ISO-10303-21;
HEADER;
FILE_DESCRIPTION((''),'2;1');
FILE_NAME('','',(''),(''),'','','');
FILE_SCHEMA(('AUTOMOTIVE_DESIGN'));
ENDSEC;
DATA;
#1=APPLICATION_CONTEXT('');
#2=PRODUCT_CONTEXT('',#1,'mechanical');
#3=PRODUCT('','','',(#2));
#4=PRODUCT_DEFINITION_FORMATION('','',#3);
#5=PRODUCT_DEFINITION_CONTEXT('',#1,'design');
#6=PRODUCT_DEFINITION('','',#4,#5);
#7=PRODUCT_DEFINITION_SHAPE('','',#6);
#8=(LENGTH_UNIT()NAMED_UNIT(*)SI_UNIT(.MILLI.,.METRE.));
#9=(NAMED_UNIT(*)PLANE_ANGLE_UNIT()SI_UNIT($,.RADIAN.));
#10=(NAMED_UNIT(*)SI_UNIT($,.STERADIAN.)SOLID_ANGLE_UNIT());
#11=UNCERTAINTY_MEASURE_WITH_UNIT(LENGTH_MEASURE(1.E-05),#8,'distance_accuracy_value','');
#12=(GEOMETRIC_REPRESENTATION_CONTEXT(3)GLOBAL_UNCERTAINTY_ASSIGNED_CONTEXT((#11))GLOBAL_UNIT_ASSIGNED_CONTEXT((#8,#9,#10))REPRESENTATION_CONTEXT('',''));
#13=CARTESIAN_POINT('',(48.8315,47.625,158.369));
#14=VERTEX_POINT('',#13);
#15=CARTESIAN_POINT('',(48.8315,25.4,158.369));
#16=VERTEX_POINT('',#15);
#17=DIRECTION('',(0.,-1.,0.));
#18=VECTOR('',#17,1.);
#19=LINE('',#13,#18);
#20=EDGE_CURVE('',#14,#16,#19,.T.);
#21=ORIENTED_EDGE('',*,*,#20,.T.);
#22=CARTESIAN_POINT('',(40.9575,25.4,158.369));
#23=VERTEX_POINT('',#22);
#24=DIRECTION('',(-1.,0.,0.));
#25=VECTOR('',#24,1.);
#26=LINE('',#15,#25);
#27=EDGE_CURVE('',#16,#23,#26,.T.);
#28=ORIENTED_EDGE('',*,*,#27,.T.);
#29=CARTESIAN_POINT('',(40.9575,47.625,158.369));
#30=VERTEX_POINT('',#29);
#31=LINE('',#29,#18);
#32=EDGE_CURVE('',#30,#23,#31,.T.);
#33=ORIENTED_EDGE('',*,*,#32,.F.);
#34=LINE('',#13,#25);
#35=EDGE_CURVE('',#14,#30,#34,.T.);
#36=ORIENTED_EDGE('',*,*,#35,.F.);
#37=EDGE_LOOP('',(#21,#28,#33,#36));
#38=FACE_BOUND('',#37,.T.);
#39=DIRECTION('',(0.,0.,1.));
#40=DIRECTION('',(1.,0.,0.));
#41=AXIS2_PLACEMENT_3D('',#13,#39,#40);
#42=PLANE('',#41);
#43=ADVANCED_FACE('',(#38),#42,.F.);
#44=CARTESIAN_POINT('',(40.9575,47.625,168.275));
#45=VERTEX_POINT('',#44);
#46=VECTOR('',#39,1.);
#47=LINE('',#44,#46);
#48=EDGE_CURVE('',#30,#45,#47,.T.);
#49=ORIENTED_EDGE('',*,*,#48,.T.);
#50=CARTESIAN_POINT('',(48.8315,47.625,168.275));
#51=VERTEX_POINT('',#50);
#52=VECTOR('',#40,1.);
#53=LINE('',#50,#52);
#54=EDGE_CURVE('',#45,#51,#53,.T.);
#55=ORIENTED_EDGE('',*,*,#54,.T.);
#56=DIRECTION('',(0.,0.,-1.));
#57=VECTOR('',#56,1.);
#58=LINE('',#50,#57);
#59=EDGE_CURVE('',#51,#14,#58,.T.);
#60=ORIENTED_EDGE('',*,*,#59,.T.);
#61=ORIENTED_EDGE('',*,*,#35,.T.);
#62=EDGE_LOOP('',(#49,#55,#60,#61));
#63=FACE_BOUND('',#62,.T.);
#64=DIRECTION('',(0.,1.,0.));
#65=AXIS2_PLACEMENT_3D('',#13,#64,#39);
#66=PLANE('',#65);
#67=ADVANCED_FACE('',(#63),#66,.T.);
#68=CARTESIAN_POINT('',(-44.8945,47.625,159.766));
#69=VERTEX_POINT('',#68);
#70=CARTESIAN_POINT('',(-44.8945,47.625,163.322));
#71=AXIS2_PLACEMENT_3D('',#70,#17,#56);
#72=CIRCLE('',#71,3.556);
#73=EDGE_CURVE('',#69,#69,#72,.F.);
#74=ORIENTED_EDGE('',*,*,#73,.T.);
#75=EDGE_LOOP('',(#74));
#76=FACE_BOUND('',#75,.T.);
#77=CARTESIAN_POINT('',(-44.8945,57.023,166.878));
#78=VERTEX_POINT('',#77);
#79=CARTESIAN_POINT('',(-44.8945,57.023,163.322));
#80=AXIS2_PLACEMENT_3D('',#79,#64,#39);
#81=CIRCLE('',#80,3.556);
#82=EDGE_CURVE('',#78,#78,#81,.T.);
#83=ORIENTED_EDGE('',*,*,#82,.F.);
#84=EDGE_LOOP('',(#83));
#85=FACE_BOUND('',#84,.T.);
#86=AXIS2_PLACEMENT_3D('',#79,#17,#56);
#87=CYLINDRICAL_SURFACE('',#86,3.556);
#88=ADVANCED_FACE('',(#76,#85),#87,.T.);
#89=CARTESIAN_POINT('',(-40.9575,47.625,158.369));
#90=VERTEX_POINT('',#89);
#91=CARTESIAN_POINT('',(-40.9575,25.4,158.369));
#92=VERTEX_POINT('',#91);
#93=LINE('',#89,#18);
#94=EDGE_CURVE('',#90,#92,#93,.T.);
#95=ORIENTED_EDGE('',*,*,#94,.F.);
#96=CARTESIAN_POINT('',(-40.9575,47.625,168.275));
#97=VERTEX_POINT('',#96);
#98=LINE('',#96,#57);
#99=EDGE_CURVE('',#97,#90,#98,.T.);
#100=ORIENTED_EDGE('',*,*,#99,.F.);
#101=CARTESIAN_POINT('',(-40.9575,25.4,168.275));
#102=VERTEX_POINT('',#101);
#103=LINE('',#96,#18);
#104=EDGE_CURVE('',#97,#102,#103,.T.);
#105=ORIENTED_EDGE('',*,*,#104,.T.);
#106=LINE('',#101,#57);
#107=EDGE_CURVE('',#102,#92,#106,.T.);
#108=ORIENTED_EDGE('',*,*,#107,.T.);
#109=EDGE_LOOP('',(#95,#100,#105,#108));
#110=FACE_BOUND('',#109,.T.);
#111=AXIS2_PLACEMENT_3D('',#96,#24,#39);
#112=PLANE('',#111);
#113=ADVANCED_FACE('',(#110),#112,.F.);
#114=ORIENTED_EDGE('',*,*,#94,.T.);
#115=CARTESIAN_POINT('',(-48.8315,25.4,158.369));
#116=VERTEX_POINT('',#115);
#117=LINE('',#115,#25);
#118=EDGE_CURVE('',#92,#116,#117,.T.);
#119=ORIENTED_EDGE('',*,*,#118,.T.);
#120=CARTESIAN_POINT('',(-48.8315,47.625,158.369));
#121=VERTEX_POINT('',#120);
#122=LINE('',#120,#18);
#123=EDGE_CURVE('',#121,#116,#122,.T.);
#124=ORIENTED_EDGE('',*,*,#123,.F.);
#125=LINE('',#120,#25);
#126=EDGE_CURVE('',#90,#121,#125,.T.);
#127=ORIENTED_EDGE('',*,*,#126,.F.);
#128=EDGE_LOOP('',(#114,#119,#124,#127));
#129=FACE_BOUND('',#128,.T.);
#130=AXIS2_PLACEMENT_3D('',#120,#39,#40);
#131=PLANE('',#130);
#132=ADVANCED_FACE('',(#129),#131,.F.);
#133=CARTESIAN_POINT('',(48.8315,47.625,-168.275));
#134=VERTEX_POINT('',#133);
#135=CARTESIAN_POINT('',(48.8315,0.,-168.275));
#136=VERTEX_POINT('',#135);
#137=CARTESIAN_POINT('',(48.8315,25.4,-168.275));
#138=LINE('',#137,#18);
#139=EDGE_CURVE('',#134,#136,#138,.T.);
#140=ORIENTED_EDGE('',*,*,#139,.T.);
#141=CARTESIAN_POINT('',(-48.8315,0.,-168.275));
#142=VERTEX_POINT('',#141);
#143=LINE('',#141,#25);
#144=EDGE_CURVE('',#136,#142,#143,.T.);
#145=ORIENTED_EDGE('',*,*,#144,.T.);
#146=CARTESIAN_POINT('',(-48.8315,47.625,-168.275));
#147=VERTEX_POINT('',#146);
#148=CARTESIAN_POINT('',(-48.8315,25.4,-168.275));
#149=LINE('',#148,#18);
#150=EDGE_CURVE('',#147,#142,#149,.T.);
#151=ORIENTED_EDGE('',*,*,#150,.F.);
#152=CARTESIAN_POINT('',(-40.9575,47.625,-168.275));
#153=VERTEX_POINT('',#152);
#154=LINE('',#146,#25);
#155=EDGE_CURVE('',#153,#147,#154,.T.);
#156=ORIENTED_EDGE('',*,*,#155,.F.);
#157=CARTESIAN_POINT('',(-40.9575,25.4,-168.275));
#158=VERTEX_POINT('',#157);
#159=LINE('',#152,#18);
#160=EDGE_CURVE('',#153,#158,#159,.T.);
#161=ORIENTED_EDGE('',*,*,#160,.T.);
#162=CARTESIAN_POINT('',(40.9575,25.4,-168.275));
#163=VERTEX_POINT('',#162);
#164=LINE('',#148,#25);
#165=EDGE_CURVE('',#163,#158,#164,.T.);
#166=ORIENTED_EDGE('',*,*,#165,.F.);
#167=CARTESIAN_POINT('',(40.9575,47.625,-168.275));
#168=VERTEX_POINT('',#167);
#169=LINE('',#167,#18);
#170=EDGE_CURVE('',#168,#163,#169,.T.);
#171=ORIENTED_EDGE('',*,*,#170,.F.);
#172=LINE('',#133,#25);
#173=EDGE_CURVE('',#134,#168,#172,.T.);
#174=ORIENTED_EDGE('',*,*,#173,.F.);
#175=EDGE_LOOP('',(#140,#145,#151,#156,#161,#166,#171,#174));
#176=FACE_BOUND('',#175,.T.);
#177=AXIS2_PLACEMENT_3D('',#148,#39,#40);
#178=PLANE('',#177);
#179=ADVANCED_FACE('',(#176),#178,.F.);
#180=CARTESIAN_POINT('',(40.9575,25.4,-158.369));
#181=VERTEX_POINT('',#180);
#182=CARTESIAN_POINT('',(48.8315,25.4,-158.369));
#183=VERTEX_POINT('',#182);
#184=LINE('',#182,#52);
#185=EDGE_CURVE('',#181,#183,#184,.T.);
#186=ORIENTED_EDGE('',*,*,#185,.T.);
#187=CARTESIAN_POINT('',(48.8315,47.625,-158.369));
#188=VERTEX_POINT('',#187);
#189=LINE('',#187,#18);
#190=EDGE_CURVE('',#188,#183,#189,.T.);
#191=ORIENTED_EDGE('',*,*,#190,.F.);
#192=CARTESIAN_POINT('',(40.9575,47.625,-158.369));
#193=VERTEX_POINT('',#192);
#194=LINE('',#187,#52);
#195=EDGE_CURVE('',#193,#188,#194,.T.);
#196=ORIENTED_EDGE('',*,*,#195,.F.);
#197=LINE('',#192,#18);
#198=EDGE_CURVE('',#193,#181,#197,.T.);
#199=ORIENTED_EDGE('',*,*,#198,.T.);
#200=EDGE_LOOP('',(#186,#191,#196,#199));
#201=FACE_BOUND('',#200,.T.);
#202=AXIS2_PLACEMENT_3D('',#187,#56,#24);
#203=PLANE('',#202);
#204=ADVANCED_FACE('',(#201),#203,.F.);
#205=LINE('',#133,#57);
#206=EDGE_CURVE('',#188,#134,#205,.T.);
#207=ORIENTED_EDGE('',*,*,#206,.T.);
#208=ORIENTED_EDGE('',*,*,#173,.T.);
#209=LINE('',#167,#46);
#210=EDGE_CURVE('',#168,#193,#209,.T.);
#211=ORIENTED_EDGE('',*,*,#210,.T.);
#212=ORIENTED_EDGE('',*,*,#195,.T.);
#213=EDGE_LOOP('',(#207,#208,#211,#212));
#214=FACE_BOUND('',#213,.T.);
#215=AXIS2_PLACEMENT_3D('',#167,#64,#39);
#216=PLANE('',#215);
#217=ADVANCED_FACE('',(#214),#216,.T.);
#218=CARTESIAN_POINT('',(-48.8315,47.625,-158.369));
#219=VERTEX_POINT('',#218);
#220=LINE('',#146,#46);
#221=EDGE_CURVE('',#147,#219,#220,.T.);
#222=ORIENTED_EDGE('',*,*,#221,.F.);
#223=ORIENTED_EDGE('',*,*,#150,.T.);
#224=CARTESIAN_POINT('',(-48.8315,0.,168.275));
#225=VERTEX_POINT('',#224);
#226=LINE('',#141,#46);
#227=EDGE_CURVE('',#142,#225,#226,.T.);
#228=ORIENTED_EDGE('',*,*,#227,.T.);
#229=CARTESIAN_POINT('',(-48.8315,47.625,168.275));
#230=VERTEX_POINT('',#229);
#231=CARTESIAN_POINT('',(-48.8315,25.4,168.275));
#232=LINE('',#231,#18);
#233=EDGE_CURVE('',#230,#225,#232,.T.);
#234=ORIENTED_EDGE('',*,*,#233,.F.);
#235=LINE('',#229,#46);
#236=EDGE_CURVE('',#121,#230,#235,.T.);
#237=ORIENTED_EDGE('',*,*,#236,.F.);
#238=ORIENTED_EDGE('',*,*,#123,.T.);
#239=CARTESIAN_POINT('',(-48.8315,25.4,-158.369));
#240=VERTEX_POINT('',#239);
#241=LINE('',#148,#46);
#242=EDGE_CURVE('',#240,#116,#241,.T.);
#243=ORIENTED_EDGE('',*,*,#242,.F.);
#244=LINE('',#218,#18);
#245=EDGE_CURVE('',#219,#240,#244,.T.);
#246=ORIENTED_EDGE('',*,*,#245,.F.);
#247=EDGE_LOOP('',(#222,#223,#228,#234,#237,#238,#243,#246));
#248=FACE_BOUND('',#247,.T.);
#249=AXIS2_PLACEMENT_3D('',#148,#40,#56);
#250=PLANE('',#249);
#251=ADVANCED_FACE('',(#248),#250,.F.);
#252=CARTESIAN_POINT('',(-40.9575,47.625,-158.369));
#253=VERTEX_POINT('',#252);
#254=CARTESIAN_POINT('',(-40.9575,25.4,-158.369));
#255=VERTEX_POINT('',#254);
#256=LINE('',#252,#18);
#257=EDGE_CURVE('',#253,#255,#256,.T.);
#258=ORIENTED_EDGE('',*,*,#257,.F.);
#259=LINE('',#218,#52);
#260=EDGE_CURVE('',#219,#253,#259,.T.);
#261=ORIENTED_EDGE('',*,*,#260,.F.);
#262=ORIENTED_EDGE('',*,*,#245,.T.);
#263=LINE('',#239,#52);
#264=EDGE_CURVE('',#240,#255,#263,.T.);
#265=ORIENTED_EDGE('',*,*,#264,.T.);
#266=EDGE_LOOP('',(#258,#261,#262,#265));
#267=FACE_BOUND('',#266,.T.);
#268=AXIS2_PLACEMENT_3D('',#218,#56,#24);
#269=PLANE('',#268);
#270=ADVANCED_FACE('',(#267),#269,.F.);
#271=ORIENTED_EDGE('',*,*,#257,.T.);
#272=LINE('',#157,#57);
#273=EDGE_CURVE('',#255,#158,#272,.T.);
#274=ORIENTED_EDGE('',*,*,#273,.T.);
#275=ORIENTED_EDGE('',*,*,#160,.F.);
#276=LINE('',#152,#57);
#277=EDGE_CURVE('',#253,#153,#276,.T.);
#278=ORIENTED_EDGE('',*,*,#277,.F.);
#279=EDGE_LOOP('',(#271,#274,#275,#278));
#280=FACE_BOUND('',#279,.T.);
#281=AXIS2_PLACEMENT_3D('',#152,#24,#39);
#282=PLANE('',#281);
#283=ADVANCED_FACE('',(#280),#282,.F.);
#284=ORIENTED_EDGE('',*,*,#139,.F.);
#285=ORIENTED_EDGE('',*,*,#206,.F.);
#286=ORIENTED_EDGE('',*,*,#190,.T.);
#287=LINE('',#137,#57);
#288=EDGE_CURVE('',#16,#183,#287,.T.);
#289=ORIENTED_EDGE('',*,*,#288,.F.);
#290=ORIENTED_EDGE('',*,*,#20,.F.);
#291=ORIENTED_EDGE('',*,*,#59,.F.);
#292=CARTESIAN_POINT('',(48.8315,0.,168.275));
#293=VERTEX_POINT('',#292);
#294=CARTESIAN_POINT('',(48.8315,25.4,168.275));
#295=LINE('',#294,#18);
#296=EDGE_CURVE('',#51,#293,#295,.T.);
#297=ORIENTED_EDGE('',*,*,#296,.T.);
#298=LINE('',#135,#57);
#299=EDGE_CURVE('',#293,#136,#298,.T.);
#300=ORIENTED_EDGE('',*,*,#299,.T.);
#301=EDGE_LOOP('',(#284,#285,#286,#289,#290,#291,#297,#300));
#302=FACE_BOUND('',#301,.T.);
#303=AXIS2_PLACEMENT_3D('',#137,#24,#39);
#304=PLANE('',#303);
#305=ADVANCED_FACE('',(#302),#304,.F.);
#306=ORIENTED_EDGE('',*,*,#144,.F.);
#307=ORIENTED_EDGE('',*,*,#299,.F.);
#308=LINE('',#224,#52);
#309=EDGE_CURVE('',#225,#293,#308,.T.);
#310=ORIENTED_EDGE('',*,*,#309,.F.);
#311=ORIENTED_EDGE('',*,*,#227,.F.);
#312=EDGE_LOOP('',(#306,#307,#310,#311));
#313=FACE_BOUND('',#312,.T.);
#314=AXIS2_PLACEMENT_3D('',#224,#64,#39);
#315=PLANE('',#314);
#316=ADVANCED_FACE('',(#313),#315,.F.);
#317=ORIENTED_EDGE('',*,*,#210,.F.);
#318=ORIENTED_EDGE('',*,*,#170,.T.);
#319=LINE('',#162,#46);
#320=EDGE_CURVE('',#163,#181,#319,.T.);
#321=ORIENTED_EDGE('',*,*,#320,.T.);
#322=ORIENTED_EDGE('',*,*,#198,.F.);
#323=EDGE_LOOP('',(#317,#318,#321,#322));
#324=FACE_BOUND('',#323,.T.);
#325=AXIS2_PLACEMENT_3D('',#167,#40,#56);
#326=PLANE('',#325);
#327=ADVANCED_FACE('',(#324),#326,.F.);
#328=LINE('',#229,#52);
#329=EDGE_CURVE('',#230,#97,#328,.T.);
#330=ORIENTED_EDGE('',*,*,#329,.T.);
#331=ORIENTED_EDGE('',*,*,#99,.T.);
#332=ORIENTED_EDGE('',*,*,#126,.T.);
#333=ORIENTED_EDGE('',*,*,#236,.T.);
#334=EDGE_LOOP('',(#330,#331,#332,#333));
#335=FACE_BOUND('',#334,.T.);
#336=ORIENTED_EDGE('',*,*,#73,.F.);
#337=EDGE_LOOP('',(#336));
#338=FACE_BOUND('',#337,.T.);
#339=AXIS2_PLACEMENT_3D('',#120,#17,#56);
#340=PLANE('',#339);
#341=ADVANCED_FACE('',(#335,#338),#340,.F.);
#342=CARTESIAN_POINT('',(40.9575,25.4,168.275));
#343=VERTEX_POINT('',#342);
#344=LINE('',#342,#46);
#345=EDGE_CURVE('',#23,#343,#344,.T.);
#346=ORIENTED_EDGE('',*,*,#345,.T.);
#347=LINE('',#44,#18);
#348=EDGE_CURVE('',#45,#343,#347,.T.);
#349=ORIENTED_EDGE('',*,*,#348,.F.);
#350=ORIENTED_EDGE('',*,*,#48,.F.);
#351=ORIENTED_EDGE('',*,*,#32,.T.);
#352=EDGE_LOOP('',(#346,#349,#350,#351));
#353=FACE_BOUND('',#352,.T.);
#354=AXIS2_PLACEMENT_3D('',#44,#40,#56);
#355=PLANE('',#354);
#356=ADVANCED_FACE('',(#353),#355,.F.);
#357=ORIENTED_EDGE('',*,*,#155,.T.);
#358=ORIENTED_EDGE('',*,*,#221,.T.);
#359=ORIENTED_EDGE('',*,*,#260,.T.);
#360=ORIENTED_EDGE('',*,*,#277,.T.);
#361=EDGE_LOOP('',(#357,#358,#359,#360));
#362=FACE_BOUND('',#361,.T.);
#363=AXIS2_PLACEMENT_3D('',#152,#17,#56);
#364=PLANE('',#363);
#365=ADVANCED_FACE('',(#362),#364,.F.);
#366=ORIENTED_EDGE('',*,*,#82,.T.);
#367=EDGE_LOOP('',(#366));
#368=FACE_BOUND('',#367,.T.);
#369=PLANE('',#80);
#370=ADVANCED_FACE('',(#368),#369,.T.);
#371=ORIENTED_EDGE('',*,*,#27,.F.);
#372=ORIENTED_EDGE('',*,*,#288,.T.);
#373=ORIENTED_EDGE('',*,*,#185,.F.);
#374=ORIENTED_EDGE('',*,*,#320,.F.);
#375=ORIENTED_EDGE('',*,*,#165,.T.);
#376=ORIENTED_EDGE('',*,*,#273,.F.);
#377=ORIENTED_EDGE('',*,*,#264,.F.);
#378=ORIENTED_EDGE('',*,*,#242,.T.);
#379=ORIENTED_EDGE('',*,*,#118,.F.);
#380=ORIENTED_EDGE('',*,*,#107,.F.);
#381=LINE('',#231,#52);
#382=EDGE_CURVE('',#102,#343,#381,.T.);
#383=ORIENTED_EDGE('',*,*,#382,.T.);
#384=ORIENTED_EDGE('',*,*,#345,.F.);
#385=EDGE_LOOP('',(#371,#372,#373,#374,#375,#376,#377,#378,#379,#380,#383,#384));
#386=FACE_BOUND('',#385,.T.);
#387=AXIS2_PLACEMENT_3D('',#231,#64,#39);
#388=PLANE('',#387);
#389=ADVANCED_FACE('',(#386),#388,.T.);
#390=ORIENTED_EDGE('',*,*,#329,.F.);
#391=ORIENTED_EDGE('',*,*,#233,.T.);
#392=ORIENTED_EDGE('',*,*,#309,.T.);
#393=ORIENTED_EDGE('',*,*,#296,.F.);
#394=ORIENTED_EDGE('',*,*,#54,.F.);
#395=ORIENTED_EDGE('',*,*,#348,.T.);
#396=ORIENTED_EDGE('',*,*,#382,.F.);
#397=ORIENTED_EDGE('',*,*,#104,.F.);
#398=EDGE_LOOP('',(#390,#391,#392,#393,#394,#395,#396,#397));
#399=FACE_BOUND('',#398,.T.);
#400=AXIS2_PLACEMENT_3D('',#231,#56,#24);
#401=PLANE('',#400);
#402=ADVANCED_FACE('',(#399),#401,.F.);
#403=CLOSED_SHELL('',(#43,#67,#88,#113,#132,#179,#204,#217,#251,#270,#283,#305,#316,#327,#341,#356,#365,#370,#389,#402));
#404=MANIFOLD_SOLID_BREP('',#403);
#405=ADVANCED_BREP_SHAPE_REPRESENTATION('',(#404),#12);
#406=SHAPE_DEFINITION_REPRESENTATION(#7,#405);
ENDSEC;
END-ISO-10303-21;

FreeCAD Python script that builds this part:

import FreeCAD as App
import Part
import Sketcher
Q = App.Units.Quantity


def add_polygon(sketch, points):
    """Adds a closed chain of lines whose ends are joined by coincident constraints."""
    first, n = sketch.GeometryCount, len(points)
    for a, b in zip(points, points[1:] + points[:1]):
        sketch.addGeometry(Part.LineSegment(App.Vector(*a, 0), App.Vector(*b, 0)), False)
    for i in range(n):
        sketch.addConstraint(Sketcher.Constraint("Coincident", first + i, 2, first + (i + 1) % n, 1))

doc = App.newDocument("Part")
body = doc.addObject("PartDesign::Body", "Body")

# Sketch on XZ plane
sketch1 = doc.addObject("Sketcher::SketchObject", "Sketch")
body.addObject(sketch1)
sketch1.AttachmentSupport = (doc.XZ_Plane, [""])
sketch1.MapMode = "FlatFace"
add_polygon(sketch1, [(-49, -168), (-49, 168), (49, 168), (49, -168)])  # lines 0-3
sketch1.addConstraint([
    Sketcher.Constraint("Vertical", 0),
    Sketcher.Constraint("Horizontal", 1),
    Sketcher.Constraint("Vertical", 2),
    Sketcher.Constraint("Horizontal", 3),
    Sketcher.Constraint("Symmetric", 0, 2, 2, 2, -1, 1),
    Sketcher.Constraint("DistanceY", 0, 1, 0, 2, Q("13.25 in")),
    Sketcher.Constraint("DistanceX", 1, 1, 1, 2, Q("3.845 in")),
])
pad1 = doc.addObject("PartDesign::Pad", "Pad")
body.addObject(pad1)
pad1.Profile = sketch1
pad1.Length = Q("1 in")
pad1.Reversed = True

# Sketch on XZ plane
sketch2 = doc.addObject("Sketcher::SketchObject", "Sketch001")
body.addObject(sketch2)
sketch2.AttachmentSupport = (doc.XZ_Plane, [""])
sketch2.MapMode = "FlatFace"
sketch2.AttachmentOffset = App.Placement(App.Vector(0, 0, -1 * 25.4), App.Rotation())
add_polygon(sketch2, [(-49, 158), (-49, 168), (-41, 168), (-41, 158)])  # lines 0-3
add_polygon(sketch2, [(41, 158), (41, 168), (49, 168), (49, 158)])  # lines 4-7
add_polygon(sketch2, [(41, -168), (41, -158), (49, -158), (49, -168)])  # lines 8-11
add_polygon(sketch2, [(-49, -168), (-49, -158), (-41, -158), (-41, -168)])  # lines 12-15
sketch2.addConstraint([
    Sketcher.Constraint("Vertical", 0),
    Sketcher.Constraint("Horizontal", 1),
    Sketcher.Constraint("Vertical", 2),
    Sketcher.Constraint("Horizontal", 3),
    Sketcher.Constraint("Vertical", 4),
    Sketcher.Constraint("Horizontal", 5),
    Sketcher.Constraint("Vertical", 6),
    Sketcher.Constraint("Horizontal", 7),
    Sketcher.Constraint("Vertical", 8),
    Sketcher.Constraint("Horizontal", 9),
    Sketcher.Constraint("Vertical", 10),
    Sketcher.Constraint("Horizontal", 11),
    Sketcher.Constraint("Vertical", 12),
    Sketcher.Constraint("Horizontal", 13),
    Sketcher.Constraint("Vertical", 14),
    Sketcher.Constraint("Horizontal", 15),
    Sketcher.Constraint("Symmetric", 2, 2, 8, 2, -1, 1),
    Sketcher.Constraint("Symmetric", 0, 2, 10, 2, -1, 1),
    Sketcher.Constraint("Symmetric", 6, 2, 12, 2, -1, 1),
    Sketcher.Constraint("Symmetric", 4, 2, 14, 2, -1, 1),
    Sketcher.Constraint("Symmetric", 1, 2, 4, 2, -2),
    Sketcher.Constraint("Symmetric", 3, 2, 6, 2, -2),
    Sketcher.Constraint("DistanceX", 1, 1, 1, 2, Q("0.31 in")),
    Sketcher.Constraint("DistanceY", 0, 1, 0, 2, Q("0.39 in")),
    Sketcher.Constraint("DistanceY", 8, 2, 7, 2, Q("12.47 in")),
    Sketcher.Constraint("DistanceX", 1, 2, 4, 2, Q("3.225 in")),
])
pad2 = doc.addObject("PartDesign::Pad", "Pad001")
body.addObject(pad2)
pad2.Profile = sketch2
pad2.Length = Q("0.875 in")
pad2.Reversed = True

# Sketch on XZ plane
sketch3 = doc.addObject("Sketcher::SketchObject", "Sketch002")
body.addObject(sketch3)
sketch3.AttachmentSupport = (doc.XZ_Plane, [""])
sketch3.MapMode = "FlatFace"
sketch3.AttachmentOffset = App.Placement(App.Vector(0, 0, -1.875 * 25.4), App.Rotation())
sketch3.addGeometry(Part.Circle(App.Vector(-44.9, 163.3, 0), App.Vector(0, 0, 1), 3.6), False)
sketch3.addConstraint([
    Sketcher.Constraint("Diameter", 0, Q("0.28 in")),
    Sketcher.Constraint("DistanceY", -1, 1, 0, 3, Q("6.43 in")),
    Sketcher.Constraint("DistanceX", 0, 3, -1, 1, Q("1.7675 in")),
])
pad3 = doc.addObject("PartDesign::Pad", "Pad002")
body.addObject(pad3)
pad3.Profile = sketch3
pad3.Length = Q("0.37 in")
pad3.Reversed = True

doc.recompute()
